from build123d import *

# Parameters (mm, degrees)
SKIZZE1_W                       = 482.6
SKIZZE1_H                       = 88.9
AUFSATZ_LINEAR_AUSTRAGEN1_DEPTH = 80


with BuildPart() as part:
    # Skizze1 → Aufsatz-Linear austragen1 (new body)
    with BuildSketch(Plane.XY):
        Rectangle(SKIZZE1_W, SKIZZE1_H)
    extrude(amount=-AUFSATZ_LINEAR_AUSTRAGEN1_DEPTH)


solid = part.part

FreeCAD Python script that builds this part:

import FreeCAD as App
import Part
import Sketcher
from FreeCAD import Vector
Q = App.Units.Quantity


def add_polygon(sketch, points):
    """Adds a closed chain of lines whose ends are joined by coincident constraints."""
    first, n = sketch.GeometryCount, len(points)
    for a, b in zip(points, points[1:] + points[:1]):
        sketch.addGeometry(Part.LineSegment(App.Vector(*a, 0), App.Vector(*b, 0)), False)
    for i in range(n):
        sketch.addConstraint(Sketcher.Constraint("Coincident", first + i, 2, first + (i + 1) % n, 1))

doc = App.newDocument("Part")
params = doc.addObject("Spreadsheet::Sheet", "Params")
for row, (alias, value) in enumerate([
    ("sketch1_width", "19 in"),
    ("sketch1_height", "3.5 in"),
    ("pad1_length", "80 mm"),
], start=1):
    params.set(f"A{row}", alias)
    params.set(f"B{row}", "=" + value)
    params.setAlias(f"B{row}", alias)

body = doc.addObject("PartDesign::Body", "Body")

sketch1 = doc.addObject("Sketcher::SketchObject", "Sketch")
body.addObject(sketch1)
sketch1.AttachmentSupport = (doc.XY_Plane, [""])
sketch1.MapMode = "FlatFace"
add_polygon(sketch1, [(-241, 44), (-241, -44), (241, -44), (241, 44)])
sketch1.addConstraint([
    Sketcher.Constraint("Vertical", 0),
    Sketcher.Constraint("Horizontal", 1),
    Sketcher.Constraint("Vertical", 2),
    Sketcher.Constraint("Horizontal", 3),
    Sketcher.Constraint("Symmetric", 0, 2, 2, 2, -1, 1),
    Sketcher.Constraint("DistanceX", 1, 1, 1, 2, Q("19 in")),
    Sketcher.Constraint("DistanceY", 0, 2, 0, 1, Q("3.5 in")),
])
sketch1.setExpression("Constraints[9]", "Params.sketch1_width")
sketch1.setExpression("Constraints[10]", "Params.sketch1_height")
pad1 = doc.addObject("PartDesign::Pad", "Pad")
body.addObject(pad1)
pad1.Profile = sketch1
pad1.setExpression("Length", "Params.pad1_length")
pad1.Reversed = True

doc.recompute()
